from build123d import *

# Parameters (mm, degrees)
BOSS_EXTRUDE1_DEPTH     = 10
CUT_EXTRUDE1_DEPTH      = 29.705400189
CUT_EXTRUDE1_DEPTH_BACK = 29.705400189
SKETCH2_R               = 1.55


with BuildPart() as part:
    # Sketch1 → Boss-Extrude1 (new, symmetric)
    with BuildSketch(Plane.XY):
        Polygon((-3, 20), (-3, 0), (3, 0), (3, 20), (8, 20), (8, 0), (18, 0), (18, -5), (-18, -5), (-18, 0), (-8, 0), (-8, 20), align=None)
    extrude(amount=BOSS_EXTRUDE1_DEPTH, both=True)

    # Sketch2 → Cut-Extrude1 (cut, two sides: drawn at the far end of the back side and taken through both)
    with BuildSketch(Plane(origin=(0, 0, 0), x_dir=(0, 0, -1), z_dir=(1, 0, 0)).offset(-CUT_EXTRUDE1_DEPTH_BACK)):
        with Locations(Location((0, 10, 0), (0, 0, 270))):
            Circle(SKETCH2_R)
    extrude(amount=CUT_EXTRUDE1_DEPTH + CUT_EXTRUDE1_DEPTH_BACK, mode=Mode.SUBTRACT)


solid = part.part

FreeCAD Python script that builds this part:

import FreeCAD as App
import Part
import Sketcher
from FreeCAD import Vector
Q = App.Units.Quantity


def add_polygon(sketch, points):
    """Adds a closed chain of lines whose ends are joined by coincident constraints."""
    first, n = sketch.GeometryCount, len(points)
    for a, b in zip(points, points[1:] + points[:1]):
        sketch.addGeometry(Part.LineSegment(App.Vector(*a, 0), App.Vector(*b, 0)), False)
    for i in range(n):
        sketch.addConstraint(Sketcher.Constraint("Coincident", first + i, 2, first + (i + 1) % n, 1))

doc = App.newDocument("Part")
body = doc.addObject("PartDesign::Body", "Body")

# Sketch on XY plane
sketch1 = body.newObject("Sketcher::SketchObject", "Sketch")
sketch1.AttachmentSupport = (doc.getObject("XY_Plane"), [""])
sketch1.MapMode = "FlatFace"
add_polygon(sketch1, [(-3, 0), (-3, 20), (-8, 20), (-8, 0), (-18, 0), (-18, -5), (18, -5), (18, 0), (8, 0), (8, 20), (3, 20), (3, 0)])  # lines 0-11
sketch1.addConstraint([
    Sketcher.Constraint("Vertical", 0),
    Sketcher.Constraint("Horizontal", 1),
    Sketcher.Constraint("Vertical", 2),
    Sketcher.Constraint("Horizontal", 3),
    Sketcher.Constraint("Vertical", 4),
    Sketcher.Constraint("Horizontal", 5),
    Sketcher.Constraint("Vertical", 6),
    Sketcher.Constraint("Horizontal", 7),
    Sketcher.Constraint("Vertical", 8),
    Sketcher.Constraint("Horizontal", 9),
    Sketcher.Constraint("Vertical", 10),
    Sketcher.Constraint("Horizontal", 11),
    Sketcher.Constraint("Symmetric", 3, 2, 6, 2, -1, 1),
    Sketcher.Constraint("Symmetric", 10, 2, 11, 2, -1, 1),
    Sketcher.Constraint("Symmetric", 2, 2, 7, 2, -2),
    Sketcher.Constraint("Horizontal", 1, 2, 8, 2),
    Sketcher.Constraint("Equal", 9, 4),
    Sketcher.Constraint("DistanceX", 1, 2, 1, 1, Q("5 mm")),
    Sketcher.Constraint("DistanceX", 3, 2, 3, 1, Q("10 mm")),
    Sketcher.Constraint("DistanceX", 5, 1, 5, 2, Q("36 mm")),
    Sketcher.Constraint("DistanceY", 0, 1, 0, 2, Q("20 mm")),
])
pad1 = body.newObject("PartDesign::Pad", "Pad")
pad1.Profile = sketch1
pad1.Length = 20
pad1.Midplane = True

# Sketch on YZ plane
sketch2 = body.newObject("Sketcher::SketchObject", "Sketch001")
sketch2.AttachmentSupport = (doc.getObject("YZ_Plane"), [""])
sketch2.MapMode = "FlatFace"
sketch2.addGeometry(Part.Circle(Vector(10, 0, 0), Vector(0, 0, 1), 1.6), False)
sketch2.addConstraint([
    Sketcher.Constraint("PointOnObject", 0, 3, -1),
    Sketcher.Constraint("Diameter", 0, Q("3.1 mm")),
    Sketcher.Constraint("DistanceX", -1, 1, 0, 3, Q("10 mm")),
])
pocket1 = body.newObject("PartDesign::Pocket", "Pocket")
pocket1.Profile = sketch2
pocket1.Type = "ThroughAll"
pocket1.Midplane = True

doc.recompute()
